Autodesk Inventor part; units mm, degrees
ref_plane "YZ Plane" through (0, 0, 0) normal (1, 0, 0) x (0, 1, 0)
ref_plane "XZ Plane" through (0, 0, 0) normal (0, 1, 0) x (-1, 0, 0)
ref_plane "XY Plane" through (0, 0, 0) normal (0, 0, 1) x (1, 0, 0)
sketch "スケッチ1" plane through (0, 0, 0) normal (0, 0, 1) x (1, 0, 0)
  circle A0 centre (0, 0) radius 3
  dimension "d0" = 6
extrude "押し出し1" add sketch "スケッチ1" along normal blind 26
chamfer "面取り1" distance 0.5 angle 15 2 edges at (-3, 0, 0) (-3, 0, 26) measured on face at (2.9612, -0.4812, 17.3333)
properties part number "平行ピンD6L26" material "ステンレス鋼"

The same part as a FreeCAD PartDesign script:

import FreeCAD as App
import Part
import Sketcher

V = App.Vector
Q = App.Units.Quantity


def edges_at(feature, points):
    """Names of the edges that pass closest to the given points."""
    edges = feature.Shape.Edges
    near = lambda p: min(range(len(edges)), key=lambda i: edges[i].distToShape(Part.Vertex(*p))[0])
    return sorted({f"Edge{near(p) + 1}" for p in points})

doc = App.newDocument("Part")
body = doc.addObject("PartDesign::Body", "Body")

# Sketch on XY plane
sketch1 = body.newObject("Sketcher::SketchObject", "Sketch")
sketch1.AttachmentSupport = (doc.getObject("XY_Plane"), [""])
sketch1.MapMode = "FlatFace"
sketch1.addGeometry(Part.Circle(V(0, 0, 0), V(0, 0, 1), 3), False)
sketch1.addConstraint([
    Sketcher.Constraint("Coincident", 0, 3, -1, 1),
    Sketcher.Constraint("Diameter", 0, Q("6 mm")),
])
pad1 = body.newObject("PartDesign::Pad", "Pad")
pad1.Profile = sketch1
pad1.Length = 26
doc.recompute()

chamfer = body.newObject("PartDesign::Chamfer", "Chamfer")
chamfer.Base = (pad1, edges_at(pad1, [(-3, 0, 0), (-3, 0, 26)]))
chamfer.ChamferType = "Distance and Angle"
chamfer.Size = 0.5
chamfer.Angle = 15

doc.recompute()
